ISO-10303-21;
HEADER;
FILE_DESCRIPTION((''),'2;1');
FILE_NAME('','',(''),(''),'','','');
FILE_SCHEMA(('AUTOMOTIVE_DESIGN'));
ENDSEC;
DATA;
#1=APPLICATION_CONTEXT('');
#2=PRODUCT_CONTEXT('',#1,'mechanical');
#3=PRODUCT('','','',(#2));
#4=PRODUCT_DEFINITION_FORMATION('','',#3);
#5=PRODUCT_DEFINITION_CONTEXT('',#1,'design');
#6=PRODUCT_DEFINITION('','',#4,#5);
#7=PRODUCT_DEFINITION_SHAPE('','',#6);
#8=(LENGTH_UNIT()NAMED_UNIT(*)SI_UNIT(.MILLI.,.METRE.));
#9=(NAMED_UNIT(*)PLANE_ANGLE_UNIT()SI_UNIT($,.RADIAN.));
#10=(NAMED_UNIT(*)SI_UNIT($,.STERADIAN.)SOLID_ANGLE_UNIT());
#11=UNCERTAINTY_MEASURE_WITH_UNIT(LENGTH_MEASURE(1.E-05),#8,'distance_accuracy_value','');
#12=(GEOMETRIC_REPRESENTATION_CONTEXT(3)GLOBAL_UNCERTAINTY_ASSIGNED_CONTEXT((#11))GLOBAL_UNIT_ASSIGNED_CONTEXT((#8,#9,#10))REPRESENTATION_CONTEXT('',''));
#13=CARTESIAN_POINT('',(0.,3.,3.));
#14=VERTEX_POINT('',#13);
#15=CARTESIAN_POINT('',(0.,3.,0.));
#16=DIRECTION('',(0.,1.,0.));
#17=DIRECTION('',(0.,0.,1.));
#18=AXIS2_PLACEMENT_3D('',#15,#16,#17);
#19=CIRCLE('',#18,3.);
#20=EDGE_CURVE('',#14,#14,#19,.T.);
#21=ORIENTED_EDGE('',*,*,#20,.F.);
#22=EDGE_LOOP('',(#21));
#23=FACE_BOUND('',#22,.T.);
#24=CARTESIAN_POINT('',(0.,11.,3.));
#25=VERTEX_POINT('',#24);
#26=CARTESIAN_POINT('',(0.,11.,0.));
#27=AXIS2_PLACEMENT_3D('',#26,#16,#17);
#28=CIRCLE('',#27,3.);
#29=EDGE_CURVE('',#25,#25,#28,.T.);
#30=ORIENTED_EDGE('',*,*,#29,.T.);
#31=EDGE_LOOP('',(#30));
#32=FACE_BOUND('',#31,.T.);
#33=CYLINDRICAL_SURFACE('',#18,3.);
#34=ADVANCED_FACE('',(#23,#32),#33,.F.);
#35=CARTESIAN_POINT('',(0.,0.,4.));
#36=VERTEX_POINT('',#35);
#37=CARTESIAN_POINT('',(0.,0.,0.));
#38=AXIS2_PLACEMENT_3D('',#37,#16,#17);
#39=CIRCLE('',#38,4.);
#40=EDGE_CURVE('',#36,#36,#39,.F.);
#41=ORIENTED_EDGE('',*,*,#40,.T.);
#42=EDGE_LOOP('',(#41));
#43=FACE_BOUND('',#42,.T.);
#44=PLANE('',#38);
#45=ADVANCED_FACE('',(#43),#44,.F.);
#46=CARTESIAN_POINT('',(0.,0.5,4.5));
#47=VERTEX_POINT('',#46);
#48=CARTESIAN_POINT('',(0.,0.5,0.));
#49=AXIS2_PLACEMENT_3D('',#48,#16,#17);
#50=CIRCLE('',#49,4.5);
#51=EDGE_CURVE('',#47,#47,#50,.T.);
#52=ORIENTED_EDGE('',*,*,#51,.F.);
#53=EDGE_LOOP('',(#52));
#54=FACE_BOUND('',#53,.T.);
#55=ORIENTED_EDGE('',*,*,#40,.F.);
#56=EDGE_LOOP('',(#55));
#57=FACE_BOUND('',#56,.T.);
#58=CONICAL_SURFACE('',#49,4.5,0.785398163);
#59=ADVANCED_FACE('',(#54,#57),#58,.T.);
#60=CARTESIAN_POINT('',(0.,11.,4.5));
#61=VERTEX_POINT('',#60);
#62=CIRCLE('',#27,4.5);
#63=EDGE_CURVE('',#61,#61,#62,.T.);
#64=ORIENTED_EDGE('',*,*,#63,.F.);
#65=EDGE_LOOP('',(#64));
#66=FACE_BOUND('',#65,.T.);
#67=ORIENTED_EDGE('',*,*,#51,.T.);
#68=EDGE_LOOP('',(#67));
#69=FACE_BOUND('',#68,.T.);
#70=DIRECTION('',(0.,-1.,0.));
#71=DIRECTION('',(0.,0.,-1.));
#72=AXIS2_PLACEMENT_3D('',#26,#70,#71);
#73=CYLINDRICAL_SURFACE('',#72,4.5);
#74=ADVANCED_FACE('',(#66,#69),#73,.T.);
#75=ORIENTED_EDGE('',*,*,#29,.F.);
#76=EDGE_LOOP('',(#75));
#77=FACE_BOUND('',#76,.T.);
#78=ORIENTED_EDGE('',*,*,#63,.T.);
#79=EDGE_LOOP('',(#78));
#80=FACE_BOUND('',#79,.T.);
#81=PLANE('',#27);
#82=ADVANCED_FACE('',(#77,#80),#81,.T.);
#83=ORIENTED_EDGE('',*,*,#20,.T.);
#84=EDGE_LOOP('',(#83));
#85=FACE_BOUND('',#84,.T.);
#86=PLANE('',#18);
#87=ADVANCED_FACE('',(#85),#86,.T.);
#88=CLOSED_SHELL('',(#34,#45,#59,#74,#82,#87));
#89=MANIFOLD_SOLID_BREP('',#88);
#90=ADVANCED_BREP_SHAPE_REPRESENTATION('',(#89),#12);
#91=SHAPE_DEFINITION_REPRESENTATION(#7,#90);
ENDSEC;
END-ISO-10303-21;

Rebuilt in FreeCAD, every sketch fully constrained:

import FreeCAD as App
import Part
import Sketcher
from FreeCAD import Vector


def edges_at(feature, points):
    """Names of the edges that pass closest to the given points."""
    edges = feature.Shape.Edges
    near = lambda p: min(range(len(edges)), key=lambda i: edges[i].distToShape(Part.Vertex(*p))[0])
    return sorted({f"Edge{near(p) + 1}" for p in points})

doc = App.newDocument("Part")
body = doc.addObject("PartDesign::Body", "Body")

# Sketch on XZ plane
sketch1 = body.newObject("Sketcher::SketchObject", "Sketch")
sketch1.AttachmentSupport = (doc.getObject("XZ_Plane"), [""])
sketch1.MapMode = "FlatFace"
sketch1.addGeometry(Part.Circle(Vector(0, 0, 0), Vector(0, 0, 1), 4.5), False)
sketch1.addConstraint(Sketcher.Constraint("Coincident", 0, 3, -1, 1))
sketch1.addConstraint(Sketcher.Constraint("Diameter", 0, 9.0))
pad1 = body.newObject("PartDesign::Pad", "Pad")
pad1.Profile = sketch1
pad1.Length = 11
pad1.Reversed = True

# Sketch on XZ plane
sketch2 = body.newObject("Sketcher::SketchObject", "Sketch001")
sketch2.AttachmentSupport = (doc.getObject("XZ_Plane"), [""])
sketch2.MapMode = "FlatFace"
sketch2.AttachmentOffset = App.Placement(Vector(0, 0, -11), App.Rotation())
sketch2.addGeometry(Part.Circle(Vector(0, 0, 0), Vector(0, 0, 1), 3), False)
sketch2.addConstraint(Sketcher.Constraint("Coincident", 0, 3, -1, 1))
sketch2.addConstraint(Sketcher.Constraint("Diameter", 0, 6.0))
pocket1 = body.newObject("PartDesign::Pocket", "Pocket")
pocket1.Profile = sketch2
pocket1.Length = 8
pocket1.Reversed = True
doc.recompute()

chamfer = body.newObject("PartDesign::Chamfer", "Chamfer")
chamfer.Base = (pocket1, edges_at(pocket1, [(0, 0, -4.5)]))
chamfer.Size = 0.5

doc.recompute()
